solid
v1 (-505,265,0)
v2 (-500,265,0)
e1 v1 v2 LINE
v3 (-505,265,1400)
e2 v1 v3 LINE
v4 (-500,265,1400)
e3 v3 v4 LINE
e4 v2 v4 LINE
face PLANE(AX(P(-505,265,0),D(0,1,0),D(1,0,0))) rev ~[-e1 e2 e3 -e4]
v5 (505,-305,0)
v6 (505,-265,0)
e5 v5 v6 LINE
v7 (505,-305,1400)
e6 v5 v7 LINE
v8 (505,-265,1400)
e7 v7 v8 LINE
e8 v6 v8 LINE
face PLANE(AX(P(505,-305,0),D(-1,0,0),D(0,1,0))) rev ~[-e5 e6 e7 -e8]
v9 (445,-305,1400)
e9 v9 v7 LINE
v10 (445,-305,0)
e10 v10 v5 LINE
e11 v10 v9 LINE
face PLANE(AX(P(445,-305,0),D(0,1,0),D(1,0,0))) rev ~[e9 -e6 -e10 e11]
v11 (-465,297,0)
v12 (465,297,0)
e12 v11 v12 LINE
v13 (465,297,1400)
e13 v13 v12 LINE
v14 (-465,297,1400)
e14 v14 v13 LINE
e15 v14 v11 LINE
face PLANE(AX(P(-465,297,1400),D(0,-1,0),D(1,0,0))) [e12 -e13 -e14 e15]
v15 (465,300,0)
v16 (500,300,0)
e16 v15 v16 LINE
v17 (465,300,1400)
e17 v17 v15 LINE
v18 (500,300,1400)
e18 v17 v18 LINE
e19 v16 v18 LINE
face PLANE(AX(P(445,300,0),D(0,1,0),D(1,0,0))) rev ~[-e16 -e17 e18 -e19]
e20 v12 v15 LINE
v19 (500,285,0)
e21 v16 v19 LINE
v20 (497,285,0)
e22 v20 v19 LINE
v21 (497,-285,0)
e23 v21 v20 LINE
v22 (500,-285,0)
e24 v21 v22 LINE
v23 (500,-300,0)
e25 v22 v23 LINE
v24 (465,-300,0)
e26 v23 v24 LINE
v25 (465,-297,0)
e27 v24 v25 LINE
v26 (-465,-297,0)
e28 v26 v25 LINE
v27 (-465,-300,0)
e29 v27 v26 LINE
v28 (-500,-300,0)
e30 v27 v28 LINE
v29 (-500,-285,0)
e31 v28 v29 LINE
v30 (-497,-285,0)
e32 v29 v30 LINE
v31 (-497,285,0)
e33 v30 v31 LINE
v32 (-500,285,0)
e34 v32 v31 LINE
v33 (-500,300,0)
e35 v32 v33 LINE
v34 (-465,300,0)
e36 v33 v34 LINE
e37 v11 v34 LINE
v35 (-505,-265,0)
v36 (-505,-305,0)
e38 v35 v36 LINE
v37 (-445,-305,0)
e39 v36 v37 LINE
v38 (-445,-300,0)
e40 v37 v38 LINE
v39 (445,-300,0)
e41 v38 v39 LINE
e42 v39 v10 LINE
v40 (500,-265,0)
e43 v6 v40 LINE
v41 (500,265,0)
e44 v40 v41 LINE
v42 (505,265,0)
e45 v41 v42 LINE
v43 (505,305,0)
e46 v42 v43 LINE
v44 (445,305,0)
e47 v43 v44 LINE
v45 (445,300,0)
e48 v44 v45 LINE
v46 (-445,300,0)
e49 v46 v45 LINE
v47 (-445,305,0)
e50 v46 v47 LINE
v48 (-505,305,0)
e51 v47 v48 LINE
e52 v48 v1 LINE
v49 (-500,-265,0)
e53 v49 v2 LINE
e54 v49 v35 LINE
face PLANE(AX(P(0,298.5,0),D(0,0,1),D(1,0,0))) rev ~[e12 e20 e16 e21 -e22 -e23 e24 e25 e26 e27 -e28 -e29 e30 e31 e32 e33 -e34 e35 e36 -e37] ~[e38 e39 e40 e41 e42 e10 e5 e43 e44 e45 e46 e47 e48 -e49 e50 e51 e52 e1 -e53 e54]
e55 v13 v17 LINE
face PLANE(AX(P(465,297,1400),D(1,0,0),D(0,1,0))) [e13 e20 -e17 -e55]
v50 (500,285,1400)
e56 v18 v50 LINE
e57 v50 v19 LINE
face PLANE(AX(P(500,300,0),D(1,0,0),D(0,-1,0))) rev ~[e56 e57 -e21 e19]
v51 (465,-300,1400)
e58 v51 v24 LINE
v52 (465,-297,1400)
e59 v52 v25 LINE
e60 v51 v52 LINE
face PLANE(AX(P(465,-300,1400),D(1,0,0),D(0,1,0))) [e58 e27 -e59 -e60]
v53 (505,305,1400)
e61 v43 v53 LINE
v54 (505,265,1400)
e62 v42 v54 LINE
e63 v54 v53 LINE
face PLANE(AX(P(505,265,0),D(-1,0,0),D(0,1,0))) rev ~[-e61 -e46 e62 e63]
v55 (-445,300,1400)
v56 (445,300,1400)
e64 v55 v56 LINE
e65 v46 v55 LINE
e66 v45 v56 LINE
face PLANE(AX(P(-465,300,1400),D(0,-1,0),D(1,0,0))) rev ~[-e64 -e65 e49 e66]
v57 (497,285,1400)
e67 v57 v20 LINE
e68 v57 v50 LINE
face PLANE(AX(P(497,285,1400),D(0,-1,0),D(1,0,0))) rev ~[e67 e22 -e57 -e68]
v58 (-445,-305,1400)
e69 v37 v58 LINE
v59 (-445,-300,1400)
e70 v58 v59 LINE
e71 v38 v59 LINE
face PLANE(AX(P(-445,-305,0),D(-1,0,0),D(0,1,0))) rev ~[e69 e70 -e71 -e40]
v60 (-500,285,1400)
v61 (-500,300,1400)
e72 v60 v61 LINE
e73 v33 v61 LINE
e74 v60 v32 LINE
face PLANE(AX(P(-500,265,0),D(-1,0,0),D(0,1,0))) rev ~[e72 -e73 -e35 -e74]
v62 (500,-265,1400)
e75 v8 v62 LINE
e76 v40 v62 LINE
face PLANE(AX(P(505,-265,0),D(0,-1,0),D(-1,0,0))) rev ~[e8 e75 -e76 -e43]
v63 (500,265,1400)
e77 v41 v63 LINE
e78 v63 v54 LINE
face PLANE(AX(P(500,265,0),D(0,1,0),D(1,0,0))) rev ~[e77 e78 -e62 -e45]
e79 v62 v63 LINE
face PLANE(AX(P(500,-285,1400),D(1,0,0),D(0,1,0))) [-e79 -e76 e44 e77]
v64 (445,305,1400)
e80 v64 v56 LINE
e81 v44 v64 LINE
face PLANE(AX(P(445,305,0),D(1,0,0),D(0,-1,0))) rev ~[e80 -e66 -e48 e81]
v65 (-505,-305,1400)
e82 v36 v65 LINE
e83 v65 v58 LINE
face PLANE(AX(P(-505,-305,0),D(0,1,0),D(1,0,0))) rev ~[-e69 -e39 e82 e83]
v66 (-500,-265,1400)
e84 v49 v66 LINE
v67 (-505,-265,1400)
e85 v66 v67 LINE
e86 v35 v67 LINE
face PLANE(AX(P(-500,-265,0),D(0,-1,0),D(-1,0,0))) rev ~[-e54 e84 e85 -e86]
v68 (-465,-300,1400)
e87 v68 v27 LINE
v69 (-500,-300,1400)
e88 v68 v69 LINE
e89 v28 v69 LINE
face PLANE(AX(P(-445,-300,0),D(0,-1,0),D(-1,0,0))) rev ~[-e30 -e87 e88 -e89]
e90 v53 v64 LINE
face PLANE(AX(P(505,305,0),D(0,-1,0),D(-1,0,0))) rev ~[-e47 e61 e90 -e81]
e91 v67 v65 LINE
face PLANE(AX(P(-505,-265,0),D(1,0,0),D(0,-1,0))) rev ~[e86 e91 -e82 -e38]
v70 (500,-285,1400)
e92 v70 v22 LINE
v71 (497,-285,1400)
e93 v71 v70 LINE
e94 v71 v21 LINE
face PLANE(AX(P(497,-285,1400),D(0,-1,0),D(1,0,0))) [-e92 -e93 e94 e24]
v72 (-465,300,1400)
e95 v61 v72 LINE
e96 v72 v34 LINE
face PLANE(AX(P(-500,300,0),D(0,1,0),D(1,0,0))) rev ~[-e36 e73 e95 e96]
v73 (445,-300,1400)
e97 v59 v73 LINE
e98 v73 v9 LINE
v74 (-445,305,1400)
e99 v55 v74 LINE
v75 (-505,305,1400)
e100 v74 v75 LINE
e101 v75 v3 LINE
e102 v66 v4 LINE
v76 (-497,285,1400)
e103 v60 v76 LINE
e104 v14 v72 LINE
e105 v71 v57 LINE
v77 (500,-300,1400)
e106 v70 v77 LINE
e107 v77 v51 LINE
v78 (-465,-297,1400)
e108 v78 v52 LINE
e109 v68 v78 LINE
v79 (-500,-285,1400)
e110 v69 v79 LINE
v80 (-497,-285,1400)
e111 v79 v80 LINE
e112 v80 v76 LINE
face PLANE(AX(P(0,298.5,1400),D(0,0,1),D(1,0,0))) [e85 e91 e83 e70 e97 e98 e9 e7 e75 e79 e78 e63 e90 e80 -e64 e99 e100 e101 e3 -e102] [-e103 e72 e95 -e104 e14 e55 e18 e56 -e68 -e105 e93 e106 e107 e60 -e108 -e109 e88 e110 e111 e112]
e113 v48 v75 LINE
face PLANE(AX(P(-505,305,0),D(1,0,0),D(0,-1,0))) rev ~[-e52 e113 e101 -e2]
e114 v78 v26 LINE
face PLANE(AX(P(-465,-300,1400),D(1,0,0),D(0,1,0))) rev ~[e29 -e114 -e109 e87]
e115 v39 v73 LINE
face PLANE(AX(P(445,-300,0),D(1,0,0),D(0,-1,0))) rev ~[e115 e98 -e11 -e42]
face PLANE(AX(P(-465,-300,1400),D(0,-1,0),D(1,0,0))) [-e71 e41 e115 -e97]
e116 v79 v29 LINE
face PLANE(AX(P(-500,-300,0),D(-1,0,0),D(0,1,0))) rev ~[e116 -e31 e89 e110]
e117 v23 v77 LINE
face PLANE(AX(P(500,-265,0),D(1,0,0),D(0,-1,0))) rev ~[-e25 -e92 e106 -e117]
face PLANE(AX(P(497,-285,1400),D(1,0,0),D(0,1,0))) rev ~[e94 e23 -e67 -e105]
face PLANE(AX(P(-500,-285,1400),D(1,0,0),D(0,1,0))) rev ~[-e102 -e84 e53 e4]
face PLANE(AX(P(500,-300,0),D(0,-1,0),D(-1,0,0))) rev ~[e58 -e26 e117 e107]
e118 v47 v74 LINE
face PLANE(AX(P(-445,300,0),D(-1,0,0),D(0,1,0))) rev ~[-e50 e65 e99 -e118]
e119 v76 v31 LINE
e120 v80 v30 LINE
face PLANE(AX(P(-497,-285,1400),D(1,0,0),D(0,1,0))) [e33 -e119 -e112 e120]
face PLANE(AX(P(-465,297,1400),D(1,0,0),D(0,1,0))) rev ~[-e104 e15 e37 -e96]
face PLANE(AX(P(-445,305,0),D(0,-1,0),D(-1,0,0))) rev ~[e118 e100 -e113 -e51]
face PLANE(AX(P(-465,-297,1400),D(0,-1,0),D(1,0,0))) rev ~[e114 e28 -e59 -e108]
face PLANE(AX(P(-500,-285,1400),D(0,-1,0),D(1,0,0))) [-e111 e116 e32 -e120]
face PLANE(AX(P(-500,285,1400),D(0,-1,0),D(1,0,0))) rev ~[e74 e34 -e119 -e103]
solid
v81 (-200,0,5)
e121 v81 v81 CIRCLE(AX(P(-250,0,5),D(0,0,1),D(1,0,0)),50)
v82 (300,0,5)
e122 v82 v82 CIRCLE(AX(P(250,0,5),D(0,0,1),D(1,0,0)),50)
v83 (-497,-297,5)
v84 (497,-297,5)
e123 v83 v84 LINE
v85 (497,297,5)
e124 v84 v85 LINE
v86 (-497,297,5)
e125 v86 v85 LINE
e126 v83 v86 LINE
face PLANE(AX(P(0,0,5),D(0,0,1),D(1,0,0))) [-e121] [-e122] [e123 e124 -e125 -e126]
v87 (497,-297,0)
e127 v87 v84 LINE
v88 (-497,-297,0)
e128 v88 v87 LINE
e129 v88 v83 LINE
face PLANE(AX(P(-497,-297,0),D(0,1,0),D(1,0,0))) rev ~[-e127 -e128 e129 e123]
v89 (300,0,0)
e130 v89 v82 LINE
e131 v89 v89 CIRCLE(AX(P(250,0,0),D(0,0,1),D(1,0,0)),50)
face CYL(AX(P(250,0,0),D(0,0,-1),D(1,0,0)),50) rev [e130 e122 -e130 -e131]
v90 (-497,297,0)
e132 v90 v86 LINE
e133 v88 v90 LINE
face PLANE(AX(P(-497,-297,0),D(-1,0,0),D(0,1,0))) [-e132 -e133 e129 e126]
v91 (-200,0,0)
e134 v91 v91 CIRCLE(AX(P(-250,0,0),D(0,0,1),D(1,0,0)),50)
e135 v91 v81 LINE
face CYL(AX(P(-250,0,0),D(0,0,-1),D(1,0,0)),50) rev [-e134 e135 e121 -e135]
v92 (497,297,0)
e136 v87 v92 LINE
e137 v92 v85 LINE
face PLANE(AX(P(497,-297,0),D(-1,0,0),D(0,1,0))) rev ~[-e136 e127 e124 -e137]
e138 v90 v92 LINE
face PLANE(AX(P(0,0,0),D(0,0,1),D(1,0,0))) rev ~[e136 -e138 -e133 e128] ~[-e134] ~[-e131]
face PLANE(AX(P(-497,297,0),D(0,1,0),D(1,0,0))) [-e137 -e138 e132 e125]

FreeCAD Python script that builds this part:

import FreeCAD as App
import Part
import Sketcher

V = App.Vector


def add_polygon(sketch, points):
    """Adds a closed chain of lines whose ends are joined by coincident constraints."""
    first, n = sketch.GeometryCount, len(points)
    for a, b in zip(points, points[1:] + points[:1]):
        sketch.addGeometry(Part.LineSegment(App.Vector(*a, 0), App.Vector(*b, 0)), False)
    for i in range(n):
        sketch.addConstraint(Sketcher.Constraint("Coincident", first + i, 2, first + (i + 1) % n, 1))

doc = App.newDocument("Part")
body = doc.addObject("PartDesign::Body", "Body")
body.AllowCompound = True

# Sketch on XY plane
sketch1 = body.newObject("Sketcher::SketchObject", "Sketch")
sketch1.AttachmentSupport = (doc.getObject("XY_Plane"), [""])
sketch1.MapMode = "FlatFace"
add_polygon(sketch1, [(-505, 305), (-505, 265), (-500, 265), (-500, 300), (-445, 300), (-445, 305)])  # lines 0-5
add_polygon(sketch1, [(505, 305), (445, 305), (445, 300), (500, 300), (500, 265), (505, 265)])  # lines 6-11
add_polygon(sketch1, [(445, -300), (445, -305), (505, -305), (505, -265), (500, -265), (500, -300)])  # lines 12-17
add_polygon(sketch1, [(-500, -265), (-505, -265), (-505, -305), (-445, -305), (-445, -300), (-500, -300)])  # lines 18-23
sketch1.addConstraint(Sketcher.Constraint("Vertical", 0))
sketch1.addConstraint(Sketcher.Constraint("Horizontal", 1))
sketch1.addConstraint(Sketcher.Constraint("Vertical", 2))
sketch1.addConstraint(Sketcher.Constraint("Horizontal", 3))
sketch1.addConstraint(Sketcher.Constraint("Vertical", 4))
sketch1.addConstraint(Sketcher.Constraint("Horizontal", 5))
sketch1.addConstraint(Sketcher.Constraint("Horizontal", 6))
sketch1.addConstraint(Sketcher.Constraint("Vertical", 7))
sketch1.addConstraint(Sketcher.Constraint("Horizontal", 8))
sketch1.addConstraint(Sketcher.Constraint("Vertical", 9))
sketch1.addConstraint(Sketcher.Constraint("Horizontal", 10))
sketch1.addConstraint(Sketcher.Constraint("Vertical", 11))
sketch1.addConstraint(Sketcher.Constraint("Vertical", 12))
sketch1.addConstraint(Sketcher.Constraint("Horizontal", 13))
sketch1.addConstraint(Sketcher.Constraint("Vertical", 14))
sketch1.addConstraint(Sketcher.Constraint("Horizontal", 15))
sketch1.addConstraint(Sketcher.Constraint("Vertical", 16))
sketch1.addConstraint(Sketcher.Constraint("Horizontal", 17))
sketch1.addConstraint(Sketcher.Constraint("Horizontal", 18))
sketch1.addConstraint(Sketcher.Constraint("Vertical", 19))
sketch1.addConstraint(Sketcher.Constraint("Horizontal", 20))
sketch1.addConstraint(Sketcher.Constraint("Vertical", 21))
sketch1.addConstraint(Sketcher.Constraint("Horizontal", 22))
sketch1.addConstraint(Sketcher.Constraint("Vertical", 23))
sketch1.addConstraint(Sketcher.Constraint("Symmetric", 4, 2, 12, 2, -1, 1))
sketch1.addConstraint(Sketcher.Constraint("Symmetric", 0, 2, 14, 2, -1, 1))
sketch1.addConstraint(Sketcher.Constraint("Symmetric", 2, 2, 16, 2, -1, 1))
sketch1.addConstraint(Sketcher.Constraint("Symmetric", 10, 2, 18, 2, -1, 1))
sketch1.addConstraint(Sketcher.Constraint("Symmetric", 6, 2, 20, 2, -1, 1))
sketch1.addConstraint(Sketcher.Constraint("Symmetric", 8, 2, 22, 2, -1, 1))
sketch1.addConstraint(Sketcher.Constraint("Symmetric", 4, 2, 6, 2, -2))
sketch1.addConstraint(Sketcher.Constraint("Symmetric", 2, 2, 8, 2, -2))
sketch1.addConstraint(Sketcher.Constraint("Symmetric", 0, 2, 10, 2, -2))
sketch1.addConstraint(Sketcher.Constraint("Equal", 18, 4))
sketch1.addConstraint(Sketcher.Constraint("DistanceX", 1, 1, 1, 2, 5.0))
sketch1.addConstraint(Sketcher.Constraint("DistanceX", 3, 1, 3, 2, 55.0))
sketch1.addConstraint(Sketcher.Constraint("DistanceY", 0, 2, 0, 1, 40.0))
sketch1.addConstraint(Sketcher.Constraint("DistanceX", 0, 2, -1, 1, 505.0))
sketch1.addConstraint(Sketcher.Constraint("DistanceY", -1, 1, 0, 2, 265.0))
pad1 = body.newObject("PartDesign::Pad", "Pad")
pad1.Profile = sketch1
pad1.Length = 1400

# Sketch on XY plane
sketch2 = body.newObject("Sketcher::SketchObject", "Sketch001")
sketch2.AttachmentSupport = (doc.getObject("XY_Plane"), [""])
sketch2.MapMode = "FlatFace"
sketch2.AttachmentOffset = App.Placement(V(0, 0, 1400), App.Rotation())
add_polygon(sketch2, [(-465, 300), (-465, 297), (465, 297), (465, 300)])  # lines 0-3
add_polygon(sketch2, [(497, 285), (497, -285), (500, -285), (500, 285)])  # lines 4-7
add_polygon(sketch2, [(-465, -297), (-465, -300), (465, -300), (465, -297)])  # lines 8-11
add_polygon(sketch2, [(-500, 285), (-500, -285), (-497, -285), (-497, 285)])  # lines 12-15
sketch2.addConstraint(Sketcher.Constraint("Vertical", 0))
sketch2.addConstraint(Sketcher.Constraint("Horizontal", 1))
sketch2.addConstraint(Sketcher.Constraint("Vertical", 2))
sketch2.addConstraint(Sketcher.Constraint("Horizontal", 3))
sketch2.addConstraint(Sketcher.Constraint("Vertical", 4))
sketch2.addConstraint(Sketcher.Constraint("Horizontal", 5))
sketch2.addConstraint(Sketcher.Constraint("Vertical", 6))
sketch2.addConstraint(Sketcher.Constraint("Horizontal", 7))
sketch2.addConstraint(Sketcher.Constraint("Vertical", 8))
sketch2.addConstraint(Sketcher.Constraint("Horizontal", 9))
sketch2.addConstraint(Sketcher.Constraint("Vertical", 10))
sketch2.addConstraint(Sketcher.Constraint("Horizontal", 11))
sketch2.addConstraint(Sketcher.Constraint("Vertical", 12))
sketch2.addConstraint(Sketcher.Constraint("Horizontal", 13))
sketch2.addConstraint(Sketcher.Constraint("Vertical", 14))
sketch2.addConstraint(Sketcher.Constraint("Horizontal", 15))
sketch2.addConstraint(Sketcher.Constraint("Symmetric", 2, 2, 8, 2, -1, 1))
sketch2.addConstraint(Sketcher.Constraint("Symmetric", 0, 2, 10, 2, -1, 1))
sketch2.addConstraint(Sketcher.Constraint("Symmetric", 6, 2, 12, 2, -1, 1))
sketch2.addConstraint(Sketcher.Constraint("Symmetric", 4, 2, 14, 2, -1, 1))
sketch2.addConstraint(Sketcher.Constraint("Horizontal", 5, 2, 12, 2))
sketch2.addConstraint(Sketcher.Constraint("Vertical", 3, 2, 8, 2))
sketch2.addConstraint(Sketcher.Constraint("Equal", 15, 0))
sketch2.addConstraint(Sketcher.Constraint("DistanceX", 1, 1, 1, 2, 930.0))
sketch2.addConstraint(Sketcher.Constraint("DistanceX", 5, 1, 5, 2, 3.0))
sketch2.addConstraint(Sketcher.Constraint("DistanceY", 4, 2, 4, 1, 570.0))
sketch2.addConstraint(Sketcher.Constraint("DistanceY", -1, 1, 0, 2, 297.0))
sketch2.addConstraint(Sketcher.Constraint("DistanceX", -1, 1, 4, 2, 497.0))
pad2 = body.newObject("PartDesign::Pad", "Pad001")
pad2.Profile = sketch2
pad2.Length = 1400
pad2.Reversed = True
body2 = doc.addObject("PartDesign::Body", "Body001")

# Sketch on XY plane
sketch3 = body2.newObject("Sketcher::SketchObject", "Sketch002")
sketch3.AttachmentSupport = (doc.getObject("XY_Plane001"), [""])
sketch3.MapMode = "FlatFace"
add_polygon(sketch3, [(-497, 297), (-497, -297), (497, -297), (497, 297)])  # lines 0-3
sketch3.addGeometry(Part.Circle(V(-250, 0, 0), V(0, 0, 1), 50), False)  # 4
sketch3.addGeometry(Part.Circle(V(250, 0, 0), V(0, 0, 1), 50), False)  # 5
sketch3.addConstraint(Sketcher.Constraint("Vertical", 0))
sketch3.addConstraint(Sketcher.Constraint("Horizontal", 1))
sketch3.addConstraint(Sketcher.Constraint("Vertical", 2))
sketch3.addConstraint(Sketcher.Constraint("Horizontal", 3))
sketch3.addConstraint(Sketcher.Constraint("Equal", 4, 5))
sketch3.addConstraint(Sketcher.Constraint("Symmetric", 4, 3, 5, 3, -1, 1))
sketch3.addConstraint(Sketcher.Constraint("Symmetric", 0, 2, 2, 2, -1, 1))
sketch3.addConstraint(Sketcher.Constraint("PointOnObject", 4, 3, -1))
sketch3.addConstraint(Sketcher.Constraint("Diameter", 4, 100.0))
sketch3.addConstraint(Sketcher.Constraint("DistanceX", 1, 1, 1, 2, 994.0))
sketch3.addConstraint(Sketcher.Constraint("DistanceY", 0, 2, 0, 1, 594.0))
sketch3.addConstraint(Sketcher.Constraint("DistanceX", 4, 3, -1, 1, 250.0))
pad3 = body2.newObject("PartDesign::Pad", "Pad002")
pad3.Profile = sketch3
pad3.Length = 5

doc.recompute()
